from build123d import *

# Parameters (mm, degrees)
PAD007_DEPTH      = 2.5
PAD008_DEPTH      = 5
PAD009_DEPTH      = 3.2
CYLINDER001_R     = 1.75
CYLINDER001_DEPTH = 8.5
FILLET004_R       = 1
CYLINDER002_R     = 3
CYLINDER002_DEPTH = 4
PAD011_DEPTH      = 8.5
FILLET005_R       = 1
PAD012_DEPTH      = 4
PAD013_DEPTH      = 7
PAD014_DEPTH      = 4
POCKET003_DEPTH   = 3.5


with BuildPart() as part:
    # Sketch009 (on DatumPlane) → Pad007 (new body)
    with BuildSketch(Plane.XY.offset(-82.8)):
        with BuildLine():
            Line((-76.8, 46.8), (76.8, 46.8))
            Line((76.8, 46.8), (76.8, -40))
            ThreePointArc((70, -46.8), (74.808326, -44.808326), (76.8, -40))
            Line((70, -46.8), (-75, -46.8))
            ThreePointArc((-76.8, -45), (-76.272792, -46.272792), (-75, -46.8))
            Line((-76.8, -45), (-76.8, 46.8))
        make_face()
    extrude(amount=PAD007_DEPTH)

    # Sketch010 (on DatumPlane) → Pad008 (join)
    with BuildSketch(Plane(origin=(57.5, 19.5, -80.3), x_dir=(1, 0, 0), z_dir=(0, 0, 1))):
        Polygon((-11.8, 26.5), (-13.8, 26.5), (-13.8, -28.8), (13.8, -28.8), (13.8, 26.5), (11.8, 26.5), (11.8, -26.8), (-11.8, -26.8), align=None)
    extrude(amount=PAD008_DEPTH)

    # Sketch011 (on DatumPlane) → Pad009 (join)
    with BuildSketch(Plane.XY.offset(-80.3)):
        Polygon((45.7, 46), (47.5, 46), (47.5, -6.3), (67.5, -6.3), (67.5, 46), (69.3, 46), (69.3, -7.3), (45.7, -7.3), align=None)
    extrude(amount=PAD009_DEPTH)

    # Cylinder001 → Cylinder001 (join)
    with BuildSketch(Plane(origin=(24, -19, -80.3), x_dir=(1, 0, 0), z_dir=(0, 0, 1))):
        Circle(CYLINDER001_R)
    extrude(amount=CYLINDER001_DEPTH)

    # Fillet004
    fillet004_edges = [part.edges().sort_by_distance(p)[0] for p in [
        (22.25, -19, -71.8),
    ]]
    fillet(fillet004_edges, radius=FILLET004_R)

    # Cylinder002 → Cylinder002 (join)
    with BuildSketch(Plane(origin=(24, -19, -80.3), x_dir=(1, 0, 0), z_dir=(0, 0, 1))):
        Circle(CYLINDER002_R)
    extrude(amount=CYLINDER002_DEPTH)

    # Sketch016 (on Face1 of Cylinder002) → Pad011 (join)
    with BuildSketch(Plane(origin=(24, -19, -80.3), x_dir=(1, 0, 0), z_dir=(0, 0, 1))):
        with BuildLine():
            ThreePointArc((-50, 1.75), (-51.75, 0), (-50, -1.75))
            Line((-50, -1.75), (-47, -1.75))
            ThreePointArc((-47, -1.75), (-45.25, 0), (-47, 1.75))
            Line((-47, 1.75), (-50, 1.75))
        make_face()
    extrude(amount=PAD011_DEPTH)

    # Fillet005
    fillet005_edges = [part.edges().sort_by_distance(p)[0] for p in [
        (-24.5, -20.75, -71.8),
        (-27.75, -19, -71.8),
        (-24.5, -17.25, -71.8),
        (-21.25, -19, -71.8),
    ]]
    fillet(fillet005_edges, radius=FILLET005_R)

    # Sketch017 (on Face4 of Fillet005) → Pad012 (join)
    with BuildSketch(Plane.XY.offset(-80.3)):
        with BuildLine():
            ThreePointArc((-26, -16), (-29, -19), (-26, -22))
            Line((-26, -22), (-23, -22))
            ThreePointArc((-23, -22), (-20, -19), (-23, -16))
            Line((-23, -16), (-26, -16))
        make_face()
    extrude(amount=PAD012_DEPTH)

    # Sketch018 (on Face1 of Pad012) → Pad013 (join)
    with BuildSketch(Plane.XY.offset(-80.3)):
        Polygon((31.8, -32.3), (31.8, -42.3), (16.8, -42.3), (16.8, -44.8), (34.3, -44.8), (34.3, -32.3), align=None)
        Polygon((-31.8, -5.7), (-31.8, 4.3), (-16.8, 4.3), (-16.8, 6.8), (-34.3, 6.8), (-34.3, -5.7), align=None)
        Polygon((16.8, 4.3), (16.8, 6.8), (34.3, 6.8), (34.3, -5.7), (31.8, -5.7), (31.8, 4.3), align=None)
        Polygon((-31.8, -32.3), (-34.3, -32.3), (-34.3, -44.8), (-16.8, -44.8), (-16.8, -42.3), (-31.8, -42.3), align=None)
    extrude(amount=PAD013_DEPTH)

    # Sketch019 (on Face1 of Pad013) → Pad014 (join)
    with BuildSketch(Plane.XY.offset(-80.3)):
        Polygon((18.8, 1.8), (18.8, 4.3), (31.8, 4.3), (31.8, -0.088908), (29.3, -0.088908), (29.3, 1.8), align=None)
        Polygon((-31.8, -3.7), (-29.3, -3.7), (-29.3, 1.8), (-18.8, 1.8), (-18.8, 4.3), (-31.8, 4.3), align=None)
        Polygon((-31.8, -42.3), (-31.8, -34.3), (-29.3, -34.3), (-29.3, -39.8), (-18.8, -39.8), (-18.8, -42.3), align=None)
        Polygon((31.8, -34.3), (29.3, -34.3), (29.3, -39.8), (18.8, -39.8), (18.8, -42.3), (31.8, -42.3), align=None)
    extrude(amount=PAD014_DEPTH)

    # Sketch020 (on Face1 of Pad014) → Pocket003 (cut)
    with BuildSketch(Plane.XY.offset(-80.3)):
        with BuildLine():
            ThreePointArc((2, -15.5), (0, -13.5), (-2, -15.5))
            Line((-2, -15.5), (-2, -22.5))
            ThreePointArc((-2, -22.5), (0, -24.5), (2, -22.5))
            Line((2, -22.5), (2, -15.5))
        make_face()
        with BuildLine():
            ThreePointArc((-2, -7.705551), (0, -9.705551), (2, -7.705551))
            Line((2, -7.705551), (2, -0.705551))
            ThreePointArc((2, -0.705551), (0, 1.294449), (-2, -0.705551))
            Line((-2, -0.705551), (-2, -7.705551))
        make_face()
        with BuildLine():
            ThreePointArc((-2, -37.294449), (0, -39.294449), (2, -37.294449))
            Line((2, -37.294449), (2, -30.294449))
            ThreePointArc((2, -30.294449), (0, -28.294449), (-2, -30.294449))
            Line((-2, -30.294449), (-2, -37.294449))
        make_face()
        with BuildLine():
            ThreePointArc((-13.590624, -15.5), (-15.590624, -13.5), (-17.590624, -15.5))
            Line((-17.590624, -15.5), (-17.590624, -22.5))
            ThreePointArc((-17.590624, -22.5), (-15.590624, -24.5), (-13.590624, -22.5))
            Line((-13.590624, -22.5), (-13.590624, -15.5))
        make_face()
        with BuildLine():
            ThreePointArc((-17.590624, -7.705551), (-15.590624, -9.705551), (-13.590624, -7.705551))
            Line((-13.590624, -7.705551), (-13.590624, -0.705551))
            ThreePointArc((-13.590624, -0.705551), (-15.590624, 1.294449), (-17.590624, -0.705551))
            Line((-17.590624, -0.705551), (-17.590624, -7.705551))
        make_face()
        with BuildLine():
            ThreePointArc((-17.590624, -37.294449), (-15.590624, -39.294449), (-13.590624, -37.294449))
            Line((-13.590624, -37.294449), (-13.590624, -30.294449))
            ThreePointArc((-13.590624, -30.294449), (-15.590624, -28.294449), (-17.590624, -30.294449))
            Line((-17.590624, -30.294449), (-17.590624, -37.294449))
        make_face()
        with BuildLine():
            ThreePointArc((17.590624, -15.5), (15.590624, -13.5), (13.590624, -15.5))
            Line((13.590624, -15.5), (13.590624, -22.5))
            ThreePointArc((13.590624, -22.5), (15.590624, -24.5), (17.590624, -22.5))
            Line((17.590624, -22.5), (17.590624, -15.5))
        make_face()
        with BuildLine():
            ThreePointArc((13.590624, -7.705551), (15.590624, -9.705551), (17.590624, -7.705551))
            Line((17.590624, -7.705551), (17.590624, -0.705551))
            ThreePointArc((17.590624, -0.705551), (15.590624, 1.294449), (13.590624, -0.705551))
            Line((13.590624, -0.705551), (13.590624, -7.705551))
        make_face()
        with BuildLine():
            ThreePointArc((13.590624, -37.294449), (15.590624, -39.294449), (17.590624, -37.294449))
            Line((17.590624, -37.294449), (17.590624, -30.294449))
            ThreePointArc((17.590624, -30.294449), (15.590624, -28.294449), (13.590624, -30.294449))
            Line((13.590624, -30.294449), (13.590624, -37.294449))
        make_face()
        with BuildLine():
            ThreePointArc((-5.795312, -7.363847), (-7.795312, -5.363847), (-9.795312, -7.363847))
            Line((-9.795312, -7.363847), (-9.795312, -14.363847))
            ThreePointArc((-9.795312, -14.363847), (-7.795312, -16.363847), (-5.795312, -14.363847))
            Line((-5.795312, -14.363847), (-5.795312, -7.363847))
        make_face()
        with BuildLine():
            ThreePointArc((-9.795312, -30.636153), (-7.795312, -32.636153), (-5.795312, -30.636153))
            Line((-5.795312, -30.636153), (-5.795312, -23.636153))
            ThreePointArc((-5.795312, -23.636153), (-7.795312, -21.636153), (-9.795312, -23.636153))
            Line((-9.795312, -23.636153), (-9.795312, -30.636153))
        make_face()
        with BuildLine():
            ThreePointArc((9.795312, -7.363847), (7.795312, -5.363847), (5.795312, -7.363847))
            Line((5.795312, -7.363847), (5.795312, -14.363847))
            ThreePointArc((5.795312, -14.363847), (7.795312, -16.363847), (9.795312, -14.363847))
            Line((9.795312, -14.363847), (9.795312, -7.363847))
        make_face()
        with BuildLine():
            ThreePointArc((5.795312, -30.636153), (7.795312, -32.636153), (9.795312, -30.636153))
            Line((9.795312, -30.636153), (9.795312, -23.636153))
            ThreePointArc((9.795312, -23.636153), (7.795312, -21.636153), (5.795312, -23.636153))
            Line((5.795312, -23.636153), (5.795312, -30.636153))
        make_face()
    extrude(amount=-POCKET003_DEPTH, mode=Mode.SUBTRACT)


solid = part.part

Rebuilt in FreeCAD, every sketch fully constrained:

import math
import FreeCAD as App
import Part
import Sketcher
from FreeCAD import Vector
Q = App.Units.Quantity


def edges_at(feature, points):
    """Names of the edges that pass closest to the given points."""
    edges = feature.Shape.Edges
    near = lambda p: min(range(len(edges)), key=lambda i: edges[i].distToShape(Part.Vertex(*p))[0])
    return sorted({f"Edge{near(p) + 1}" for p in points})

doc = App.newDocument("Part")
body = doc.addObject("PartDesign::Body", "Body")

sketch1 = body.newObject("Sketcher::SketchObject", "Sketch")
sketch1.AttachmentSupport = (doc.getObject("XY_Plane"), [""])
sketch1.MapMode = "FlatFace"
sketch1.AttachmentOffset = App.Placement(Vector(0, 0, -82.8), App.Rotation())
sketch1.addGeometry(Part.LineSegment(Vector(76.8, 46.8, 0), Vector(-76.8, 46.8, 0)), False)
sketch1.addGeometry(Part.LineSegment(Vector(-76.8, 46.8, 0), Vector(-76.8, -45, 0)), False)
sketch1.addGeometry(Part.ArcOfCircle(Part.Circle(Vector(-75, -45, 0), Vector(0, 0, 1), 1.8), math.radians(-180), math.radians(-90)), False)
sketch1.addGeometry(Part.LineSegment(Vector(-75, -46.8, 0), Vector(70, -46.8, 0)), False)
sketch1.addGeometry(Part.ArcOfCircle(Part.Circle(Vector(70, -40, 0), Vector(0, 0, 1), 6.8), math.radians(-90), math.radians(0)), False)
sketch1.addGeometry(Part.LineSegment(Vector(76.8, -40, 0), Vector(76.8, 46.8, 0)), False)
sketch1.addConstraint(Sketcher.Constraint("Coincident", 0, 2, 1, 1))
sketch1.addConstraint(Sketcher.Constraint("Tangent", 1, 2, 2, 1))
sketch1.addConstraint(Sketcher.Constraint("Tangent", 2, 2, 3, 1))
sketch1.addConstraint(Sketcher.Constraint("Tangent", 3, 2, 4, 1))
sketch1.addConstraint(Sketcher.Constraint("Tangent", 4, 2, 5, 1))
sketch1.addConstraint(Sketcher.Constraint("Coincident", 5, 2, 0, 1))
sketch1.addConstraint(Sketcher.Constraint("Horizontal", 0))
sketch1.addConstraint(Sketcher.Constraint("Vertical", 1))
sketch1.addConstraint(Sketcher.Constraint("Horizontal", 3))
sketch1.addConstraint(Sketcher.Constraint("Vertical", 5))
sketch1.addConstraint(Sketcher.Constraint("Radius", 2, Q("1.800001 mm")))
sketch1.addConstraint(Sketcher.Constraint("Radius", 4, Q("6.8 mm")))
sketch1.addConstraint(Sketcher.Constraint("DistanceX", 3, 1, 3, 2, Q("145 mm")))
sketch1.addConstraint(Sketcher.Constraint("DistanceY", 1, 2, 1, 1, Q("91.8 mm")))
sketch1.addConstraint(Sketcher.Constraint("DistanceX", 2, 3, -1, 1, Q("74.999999 mm")))
sketch1.addConstraint(Sketcher.Constraint("DistanceY", 2, 3, -1, 1, Q("44.999999 mm")))
pad1 = body.newObject("PartDesign::Pad", "Pad")
pad1.Profile = sketch1
pad1.Length = 2.5

sketch2 = body.newObject("Sketcher::SketchObject", "Sketch001")
sketch2.AttachmentSupport = (doc.getObject("XY_Plane"), [""])
sketch2.MapMode = "FlatFace"
sketch2.AttachmentOffset = App.Placement(Vector(0, 0, -80.3), App.Rotation())
sketch2.addGeometry(Part.LineSegment(Vector(45.7, 46, 0), Vector(43.7, 46, 0)), False)
sketch2.addGeometry(Part.LineSegment(Vector(43.7, 46, 0), Vector(43.7, -9.3, 0)), False)
sketch2.addGeometry(Part.LineSegment(Vector(43.7, -9.3, 0), Vector(71.3, -9.3, 0)), False)
sketch2.addGeometry(Part.LineSegment(Vector(71.3, -9.3, 0), Vector(71.3, 46, 0)), False)
sketch2.addGeometry(Part.LineSegment(Vector(71.3, 46, 0), Vector(69.3, 46, 0)), False)
sketch2.addGeometry(Part.LineSegment(Vector(69.3, 46, 0), Vector(69.3, -7.3, 0)), False)
sketch2.addGeometry(Part.LineSegment(Vector(69.3, -7.3, 0), Vector(45.7, -7.3, 0)), False)
sketch2.addGeometry(Part.LineSegment(Vector(45.7, -7.3, 0), Vector(45.7, 46, 0)), False)
sketch2.addConstraint(Sketcher.Constraint("Coincident", 0, 2, 1, 1))
sketch2.addConstraint(Sketcher.Constraint("Coincident", 1, 2, 2, 1))
sketch2.addConstraint(Sketcher.Constraint("Coincident", 2, 2, 3, 1))
sketch2.addConstraint(Sketcher.Constraint("Coincident", 3, 2, 4, 1))
sketch2.addConstraint(Sketcher.Constraint("Coincident", 4, 2, 5, 1))
sketch2.addConstraint(Sketcher.Constraint("Coincident", 5, 2, 6, 1))
sketch2.addConstraint(Sketcher.Constraint("Coincident", 6, 2, 7, 1))
sketch2.addConstraint(Sketcher.Constraint("Coincident", 7, 2, 0, 1))
sketch2.addConstraint(Sketcher.Constraint("Horizontal", 0))
sketch2.addConstraint(Sketcher.Constraint("Vertical", 1))
sketch2.addConstraint(Sketcher.Constraint("Horizontal", 2))
sketch2.addConstraint(Sketcher.Constraint("Vertical", 3))
sketch2.addConstraint(Sketcher.Constraint("Horizontal", 4))
sketch2.addConstraint(Sketcher.Constraint("Vertical", 5))
sketch2.addConstraint(Sketcher.Constraint("Horizontal", 6))
sketch2.addConstraint(Sketcher.Constraint("Vertical", 7))
sketch2.addConstraint(Sketcher.Constraint("Horizontal", 0, 2, 3, 2))
sketch2.addConstraint(Sketcher.Constraint("Equal", 0, 4))
sketch2.addConstraint(Sketcher.Constraint("DistanceX", 0, 2, 0, 1, Q("2 mm")))
sketch2.addConstraint(Sketcher.Constraint("DistanceX", 2, 1, 2, 2, Q("27.6 mm")))
sketch2.addConstraint(Sketcher.Constraint("DistanceY", 1, 2, 1, 1, Q("55.3 mm")))
sketch2.addConstraint(Sketcher.Constraint("DistanceY", 5, 2, 5, 1, Q("53.3 mm")))
sketch2.addConstraint(Sketcher.Constraint("DistanceY", -1, 1, 0, 2, Q("46 mm")))
sketch2.addConstraint(Sketcher.Constraint("DistanceX", -1, 1, 0, 2, Q("43.7 mm")))
pad2 = body.newObject("PartDesign::Pad", "Pad001")
pad2.Profile = sketch2
pad2.Length = 5

sketch3 = body.newObject("Sketcher::SketchObject", "Sketch002")
sketch3.AttachmentSupport = (doc.getObject("XY_Plane"), [""])
sketch3.MapMode = "FlatFace"
sketch3.AttachmentOffset = App.Placement(Vector(0, 0, -80.3), App.Rotation())
sketch3.addGeometry(Part.LineSegment(Vector(47.5, 46, 0), Vector(45.7, 46, 0)), False)
sketch3.addGeometry(Part.LineSegment(Vector(45.7, 46, 0), Vector(45.7, -7.3, 0)), False)
sketch3.addGeometry(Part.LineSegment(Vector(45.7, -7.3, 0), Vector(69.3, -7.3, 0)), False)
sketch3.addGeometry(Part.LineSegment(Vector(69.3, -7.3, 0), Vector(69.3, 46, 0)), False)
sketch3.addGeometry(Part.LineSegment(Vector(69.3, 46, 0), Vector(67.5, 46, 0)), False)
sketch3.addGeometry(Part.LineSegment(Vector(67.5, 46, 0), Vector(67.5, -6.3, 0)), False)
sketch3.addGeometry(Part.LineSegment(Vector(67.5, -6.3, 0), Vector(47.5, -6.3, 0)), False)
sketch3.addGeometry(Part.LineSegment(Vector(47.5, -6.3, 0), Vector(47.5, 46, 0)), False)
sketch3.addConstraint(Sketcher.Constraint("Coincident", 0, 2, 1, 1))
sketch3.addConstraint(Sketcher.Constraint("Coincident", 1, 2, 2, 1))
sketch3.addConstraint(Sketcher.Constraint("Coincident", 2, 2, 3, 1))
sketch3.addConstraint(Sketcher.Constraint("Coincident", 3, 2, 4, 1))
sketch3.addConstraint(Sketcher.Constraint("Coincident", 4, 2, 5, 1))
sketch3.addConstraint(Sketcher.Constraint("Coincident", 5, 2, 6, 1))
sketch3.addConstraint(Sketcher.Constraint("Coincident", 6, 2, 7, 1))
sketch3.addConstraint(Sketcher.Constraint("Coincident", 7, 2, 0, 1))
sketch3.addConstraint(Sketcher.Constraint("Horizontal", 0))
sketch3.addConstraint(Sketcher.Constraint("Vertical", 1))
sketch3.addConstraint(Sketcher.Constraint("Horizontal", 2))
sketch3.addConstraint(Sketcher.Constraint("Vertical", 3))
sketch3.addConstraint(Sketcher.Constraint("Horizontal", 4))
sketch3.addConstraint(Sketcher.Constraint("Vertical", 5))
sketch3.addConstraint(Sketcher.Constraint("Horizontal", 6))
sketch3.addConstraint(Sketcher.Constraint("Vertical", 7))
sketch3.addConstraint(Sketcher.Constraint("Horizontal", 0, 2, 3, 2))
sketch3.addConstraint(Sketcher.Constraint("Equal", 0, 4))
sketch3.addConstraint(Sketcher.Constraint("DistanceX", 6, 2, 6, 1, Q("20 mm")))
sketch3.addConstraint(Sketcher.Constraint("DistanceX", 0, 2, 0, 1, Q("1.8 mm")))
sketch3.addConstraint(Sketcher.Constraint("DistanceY", 1, 2, 1, 1, Q("53.3 mm")))
sketch3.addConstraint(Sketcher.Constraint("DistanceY", 5, 2, 5, 1, Q("52.3 mm")))
sketch3.addConstraint(Sketcher.Constraint("DistanceY", -1, 1, 0, 2, Q("46 mm")))
sketch3.addConstraint(Sketcher.Constraint("DistanceX", -1, 1, 0, 2, Q("45.7 mm")))
pad3 = body.newObject("PartDesign::Pad", "Pad002")
pad3.Profile = sketch3
pad3.Length = 3.2

sketch4 = body.newObject("Sketcher::SketchObject", "Sketch003")
sketch4.AttachmentSupport = (doc.getObject("XY_Plane"), [""])
sketch4.MapMode = "FlatFace"
sketch4.AttachmentOffset = App.Placement(Vector(0, 0, -80.3), App.Rotation())
sketch4.addGeometry(Part.Circle(Vector(24, -19, 0), Vector(0, 0, 1), 1.8), False)
sketch4.addConstraint(Sketcher.Constraint("Diameter", 0, Q("3.5 mm")))
sketch4.addConstraint(Sketcher.Constraint("DistanceX", -1, 1, 0, 3, Q("24 mm")))
sketch4.addConstraint(Sketcher.Constraint("DistanceY", 0, 3, -1, 1, Q("19 mm")))
pad4 = body.newObject("PartDesign::Pad", "Pad003")
pad4.Profile = sketch4
pad4.Length = 8.5
doc.recompute()

fillet = body.newObject("PartDesign::Fillet", "Fillet")
fillet.Base = (pad4, edges_at(pad4, [(22.25, -19, -71.8)]))
fillet.Radius = 1

sketch5 = body.newObject("Sketcher::SketchObject", "Sketch004")
sketch5.AttachmentSupport = (doc.getObject("XY_Plane"), [""])
sketch5.MapMode = "FlatFace"
sketch5.AttachmentOffset = App.Placement(Vector(0, 0, -80.3), App.Rotation())
sketch5.addGeometry(Part.Circle(Vector(24, -19, 0), Vector(0, 0, 1), 3), False)
sketch5.addConstraint(Sketcher.Constraint("Diameter", 0, Q("6 mm")))
sketch5.addConstraint(Sketcher.Constraint("DistanceX", -1, 1, 0, 3, Q("24 mm")))
sketch5.addConstraint(Sketcher.Constraint("DistanceY", 0, 3, -1, 1, Q("19 mm")))
pad5 = body.newObject("PartDesign::Pad", "Pad004")
pad5.Profile = sketch5
pad5.Length = 4

sketch6 = body.newObject("Sketcher::SketchObject", "Sketch005")
sketch6.AttachmentSupport = (doc.getObject("XY_Plane"), [""])
sketch6.MapMode = "FlatFace"
sketch6.AttachmentOffset = App.Placement(Vector(0, 0, -80.3), App.Rotation())
sketch6.addGeometry(Part.ArcOfCircle(Part.Circle(Vector(-26, -19, 0), Vector(0, 0, 1), 1.8), math.radians(90), math.radians(270)), False)
sketch6.addGeometry(Part.LineSegment(Vector(-26, -20.8, 0), Vector(-23, -20.8, 0)), False)
sketch6.addGeometry(Part.ArcOfCircle(Part.Circle(Vector(-23, -19, 0), Vector(0, 0, 1), 1.8), math.radians(-90), math.radians(90)), False)
sketch6.addGeometry(Part.LineSegment(Vector(-23, -17.2, 0), Vector(-26, -17.2, 0)), False)
sketch6.addConstraint(Sketcher.Constraint("Tangent", 0, 2, 1, 1))
sketch6.addConstraint(Sketcher.Constraint("Tangent", 1, 2, 2, 1))
sketch6.addConstraint(Sketcher.Constraint("Tangent", 2, 2, 3, 1))
sketch6.addConstraint(Sketcher.Constraint("Tangent", 3, 2, 0, 1))
sketch6.addConstraint(Sketcher.Constraint("Horizontal", 1))
sketch6.addConstraint(Sketcher.Constraint("Horizontal", 3))
sketch6.addConstraint(Sketcher.Constraint("DistanceX", 1, 1, 1, 2, Q("3 mm")))
sketch6.addConstraint(Sketcher.Constraint("Radius", 0, Q("1.75 mm")))
sketch6.addConstraint(Sketcher.Constraint("DistanceX", 0, 3, -1, 1, Q("26 mm")))
sketch6.addConstraint(Sketcher.Constraint("DistanceY", 0, 3, -1, 1, Q("19 mm")))
pad6 = body.newObject("PartDesign::Pad", "Pad005")
pad6.Profile = sketch6
pad6.Length = 8.5
doc.recompute()

fillet2 = body.newObject("PartDesign::Fillet", "Fillet001")
fillet2.Base = (pad6, edges_at(pad6, [
    (-24.5, -20.75, -71.8),
    (-27.75, -19, -71.8),
    (-24.5, -17.25, -71.8),
    (-21.25, -19, -71.8),
]))
fillet2.Radius = 1

sketch7 = body.newObject("Sketcher::SketchObject", "Sketch006")
sketch7.AttachmentSupport = (doc.getObject("XY_Plane"), [""])
sketch7.MapMode = "FlatFace"
sketch7.AttachmentOffset = App.Placement(Vector(0, 0, -80.3), App.Rotation())
sketch7.addGeometry(Part.ArcOfCircle(Part.Circle(Vector(-26, -19, 0), Vector(0, 0, 1), 3), math.radians(90), math.radians(270)), False)
sketch7.addGeometry(Part.LineSegment(Vector(-26, -22, 0), Vector(-23, -22, 0)), False)
sketch7.addGeometry(Part.ArcOfCircle(Part.Circle(Vector(-23, -19, 0), Vector(0, 0, 1), 3), math.radians(-90), math.radians(90)), False)
sketch7.addGeometry(Part.LineSegment(Vector(-23, -16, 0), Vector(-26, -16, 0)), False)
sketch7.addConstraint(Sketcher.Constraint("Tangent", 0, 2, 1, 1))
sketch7.addConstraint(Sketcher.Constraint("Tangent", 1, 2, 2, 1))
sketch7.addConstraint(Sketcher.Constraint("Tangent", 2, 2, 3, 1))
sketch7.addConstraint(Sketcher.Constraint("Tangent", 3, 2, 0, 1))
sketch7.addConstraint(Sketcher.Constraint("Horizontal", 1))
sketch7.addConstraint(Sketcher.Constraint("Horizontal", 3))
sketch7.addConstraint(Sketcher.Constraint("Radius", 0, Q("3 mm")))
sketch7.addConstraint(Sketcher.Constraint("DistanceX", 1, 1, 1, 2, Q("3 mm")))
sketch7.addConstraint(Sketcher.Constraint("DistanceX", 0, 3, -1, 1, Q("26 mm")))
sketch7.addConstraint(Sketcher.Constraint("DistanceY", 0, 3, -1, 1, Q("19 mm")))
pad7 = body.newObject("PartDesign::Pad", "Pad006")
pad7.Profile = sketch7
pad7.Length = 4

sketch8 = body.newObject("Sketcher::SketchObject", "Sketch007")
sketch8.AttachmentSupport = (doc.getObject("XY_Plane"), [""])
sketch8.MapMode = "FlatFace"
sketch8.AttachmentOffset = App.Placement(Vector(0, 0, -80.3), App.Rotation())
sketch8.addGeometry(Part.LineSegment(Vector(31.8, -32.3, 0), Vector(31.8, -42.3, 0)), False)
sketch8.addGeometry(Part.LineSegment(Vector(31.8, -42.3, 0), Vector(16.8, -42.3, 0)), False)
sketch8.addGeometry(Part.LineSegment(Vector(16.8, -42.3, 0), Vector(16.8, -44.8, 0)), False)
sketch8.addGeometry(Part.LineSegment(Vector(16.8, -44.8, 0), Vector(34.3, -44.8, 0)), False)
sketch8.addGeometry(Part.LineSegment(Vector(34.3, -44.8, 0), Vector(34.3, -32.3, 0)), False)
sketch8.addGeometry(Part.LineSegment(Vector(34.3, -32.3, 0), Vector(31.8, -32.3, 0)), False)
sketch8.addGeometry(Part.LineSegment(Vector(-31.8, -5.7, 0), Vector(-31.8, 4.3, 0)), False)
sketch8.addGeometry(Part.LineSegment(Vector(-31.8, 4.3, 0), Vector(-16.8, 4.3, 0)), False)
sketch8.addGeometry(Part.LineSegment(Vector(-16.8, 4.3, 0), Vector(-16.8, 6.8, 0)), False)
sketch8.addGeometry(Part.LineSegment(Vector(-16.8, 6.8, 0), Vector(-34.3, 6.8, 0)), False)
sketch8.addGeometry(Part.LineSegment(Vector(-34.3, 6.8, 0), Vector(-34.3, -5.7, 0)), False)
sketch8.addGeometry(Part.LineSegment(Vector(-34.3, -5.7, 0), Vector(-31.8, -5.7, 0)), False)
sketch8.addGeometry(Part.LineSegment(Vector(16.8, 6.8, 0), Vector(16.8, 4.3, 0)), False)
sketch8.addGeometry(Part.LineSegment(Vector(16.8, 4.3, 0), Vector(31.8, 4.3, 0)), False)
sketch8.addGeometry(Part.LineSegment(Vector(31.8, 4.3, 0), Vector(31.8, -5.7, 0)), False)
sketch8.addGeometry(Part.LineSegment(Vector(31.8, -5.7, 0), Vector(34.3, -5.7, 0)), False)
sketch8.addGeometry(Part.LineSegment(Vector(34.3, -5.7, 0), Vector(34.3, 6.8, 0)), False)
sketch8.addGeometry(Part.LineSegment(Vector(34.3, 6.8, 0), Vector(16.8, 6.8, 0)), False)
sketch8.addGeometry(Part.LineSegment(Vector(-31.8, -32.3, 0), Vector(-34.3, -32.3, 0)), False)
sketch8.addGeometry(Part.LineSegment(Vector(-34.3, -32.3, 0), Vector(-34.3, -44.8, 0)), False)
sketch8.addGeometry(Part.LineSegment(Vector(-34.3, -44.8, 0), Vector(-16.8, -44.8, 0)), False)
sketch8.addGeometry(Part.LineSegment(Vector(-16.8, -44.8, 0), Vector(-16.8, -42.3, 0)), False)
sketch8.addGeometry(Part.LineSegment(Vector(-16.8, -42.3, 0), Vector(-31.8, -42.3, 0)), False)
sketch8.addGeometry(Part.LineSegment(Vector(-31.8, -42.3, 0), Vector(-31.8, -32.3, 0)), False)
sketch8.addConstraint(Sketcher.Constraint("Coincident", 0, 2, 1, 1))
sketch8.addConstraint(Sketcher.Constraint("Coincident", 1, 2, 2, 1))
sketch8.addConstraint(Sketcher.Constraint("Coincident", 2, 2, 3, 1))
sketch8.addConstraint(Sketcher.Constraint("Coincident", 3, 2, 4, 1))
sketch8.addConstraint(Sketcher.Constraint("Coincident", 4, 2, 5, 1))
sketch8.addConstraint(Sketcher.Constraint("Coincident", 5, 2, 0, 1))
sketch8.addConstraint(Sketcher.Constraint("Coincident", 6, 2, 7, 1))
sketch8.addConstraint(Sketcher.Constraint("Coincident", 7, 2, 8, 1))
sketch8.addConstraint(Sketcher.Constraint("Coincident", 8, 2, 9, 1))
sketch8.addConstraint(Sketcher.Constraint("Coincident", 9, 2, 10, 1))
sketch8.addConstraint(Sketcher.Constraint("Coincident", 10, 2, 11, 1))
sketch8.addConstraint(Sketcher.Constraint("Coincident", 11, 2, 6, 1))
sketch8.addConstraint(Sketcher.Constraint("Coincident", 12, 2, 13, 1))
sketch8.addConstraint(Sketcher.Constraint("Coincident", 13, 2, 14, 1))
sketch8.addConstraint(Sketcher.Constraint("Coincident", 14, 2, 15, 1))
sketch8.addConstraint(Sketcher.Constraint("Coincident", 15, 2, 16, 1))
sketch8.addConstraint(Sketcher.Constraint("Coincident", 16, 2, 17, 1))
sketch8.addConstraint(Sketcher.Constraint("Coincident", 17, 2, 12, 1))
sketch8.addConstraint(Sketcher.Constraint("Coincident", 18, 2, 19, 1))
sketch8.addConstraint(Sketcher.Constraint("Coincident", 19, 2, 20, 1))
sketch8.addConstraint(Sketcher.Constraint("Coincident", 20, 2, 21, 1))
sketch8.addConstraint(Sketcher.Constraint("Coincident", 21, 2, 22, 1))
sketch8.addConstraint(Sketcher.Constraint("Coincident", 22, 2, 23, 1))
sketch8.addConstraint(Sketcher.Constraint("Coincident", 23, 2, 18, 1))
sketch8.addConstraint(Sketcher.Constraint("Vertical", 0))
sketch8.addConstraint(Sketcher.Constraint("Horizontal", 1))
sketch8.addConstraint(Sketcher.Constraint("Vertical", 2))
sketch8.addConstraint(Sketcher.Constraint("Horizontal", 3))
sketch8.addConstraint(Sketcher.Constraint("Vertical", 4))
sketch8.addConstraint(Sketcher.Constraint("Horizontal", 5))
sketch8.addConstraint(Sketcher.Constraint("Vertical", 6))
sketch8.addConstraint(Sketcher.Constraint("Horizontal", 7))
sketch8.addConstraint(Sketcher.Constraint("Vertical", 8))
sketch8.addConstraint(Sketcher.Constraint("Horizontal", 9))
sketch8.addConstraint(Sketcher.Constraint("Vertical", 10))
sketch8.addConstraint(Sketcher.Constraint("Horizontal", 11))
sketch8.addConstraint(Sketcher.Constraint("Vertical", 12))
sketch8.addConstraint(Sketcher.Constraint("Horizontal", 13))
sketch8.addConstraint(Sketcher.Constraint("Vertical", 14))
sketch8.addConstraint(Sketcher.Constraint("Horizontal", 15))
sketch8.addConstraint(Sketcher.Constraint("Vertical", 16))
sketch8.addConstraint(Sketcher.Constraint("Horizontal", 17))
sketch8.addConstraint(Sketcher.Constraint("Horizontal", 18))
sketch8.addConstraint(Sketcher.Constraint("Vertical", 19))
sketch8.addConstraint(Sketcher.Constraint("Horizontal", 20))
sketch8.addConstraint(Sketcher.Constraint("Vertical", 21))
sketch8.addConstraint(Sketcher.Constraint("Horizontal", 22))
sketch8.addConstraint(Sketcher.Constraint("Vertical", 23))
sketch8.addConstraint(Sketcher.Constraint("Symmetric", 7, 2, 12, 2, -2))
sketch8.addConstraint(Sketcher.Constraint("Symmetric", 11, 2, 14, 2, -2))
sketch8.addConstraint(Sketcher.Constraint("Symmetric", 9, 2, 16, 2, -2))
sketch8.addConstraint(Sketcher.Constraint("Symmetric", 4, 2, 18, 2, -2))
sketch8.addConstraint(Sketcher.Constraint("Symmetric", 2, 2, 20, 2, -2))
sketch8.addConstraint(Sketcher.Constraint("Symmetric", 0, 2, 22, 2, -2))
sketch8.addConstraint(Sketcher.Constraint("Vertical", 2, 2, 12, 2))
sketch8.addConstraint(Sketcher.Constraint("Vertical", 5, 2, 13, 2))
sketch8.addConstraint(Sketcher.Constraint("Vertical", 4, 2, 15, 2))
sketch8.addConstraint(Sketcher.Constraint("Equal", 18, 2))
sketch8.addConstraint(Sketcher.Constraint("Equal", 0, 6))
sketch8.addConstraint(Sketcher.Constraint("Equal", 2, 8))
sketch8.addConstraint(Sketcher.Constraint("DistanceX", 1, 2, 1, 1, Q("15 mm")))
sketch8.addConstraint(Sketcher.Constraint("DistanceY", 0, 2, 0, 1, Q("10 mm")))
sketch8.addConstraint(Sketcher.Constraint("DistanceX", 3, 1, 3, 2, Q("17.5 mm")))
sketch8.addConstraint(Sketcher.Constraint("DistanceX", -1, 1, 0, 2, Q("31.8 mm")))
sketch8.addConstraint(Sketcher.Constraint("DistanceY", 0, 2, -1, 1, Q("42.3 mm")))
sketch8.addConstraint(Sketcher.Constraint("DistanceY", -1, 1, 6, 2, Q("4.3 mm")))
pad8 = body.newObject("PartDesign::Pad", "Pad007")
pad8.Profile = sketch8
pad8.Length = 7

sketch9 = body.newObject("Sketcher::SketchObject", "Sketch008")
sketch9.AttachmentSupport = (doc.getObject("XY_Plane"), [""])
sketch9.MapMode = "FlatFace"
sketch9.AttachmentOffset = App.Placement(Vector(0, 0, -80.3), App.Rotation())
sketch9.addGeometry(Part.LineSegment(Vector(18.8, 4.3, 0), Vector(18.8, 1.8, 0)), False)
sketch9.addGeometry(Part.LineSegment(Vector(18.8, 1.8, 0), Vector(29.3, 1.8, 0)), False)
sketch9.addGeometry(Part.LineSegment(Vector(29.3, 1.8, 0), Vector(29.3, -0.1, 0)), False)
sketch9.addGeometry(Part.LineSegment(Vector(29.3, -0.1, 0), Vector(31.8, -0.1, 0)), False)
sketch9.addGeometry(Part.LineSegment(Vector(31.8, -0.1, 0), Vector(31.8, 4.3, 0)), False)
sketch9.addGeometry(Part.LineSegment(Vector(31.8, 4.3, 0), Vector(18.8, 4.3, 0)), False)
sketch9.addGeometry(Part.LineSegment(Vector(-31.8, -3.7, 0), Vector(-29.3, -3.7, 0)), False)
sketch9.addGeometry(Part.LineSegment(Vector(-29.3, -3.7, 0), Vector(-29.3, 1.8, 0)), False)
sketch9.addGeometry(Part.LineSegment(Vector(-29.3, 1.8, 0), Vector(-18.8, 1.8, 0)), False)
sketch9.addGeometry(Part.LineSegment(Vector(-18.8, 1.8, 0), Vector(-18.8, 4.3, 0)), False)
sketch9.addGeometry(Part.LineSegment(Vector(-18.8, 4.3, 0), Vector(-31.8, 4.3, 0)), False)
sketch9.addGeometry(Part.LineSegment(Vector(-31.8, 4.3, 0), Vector(-31.8, -3.7, 0)), False)
sketch9.addGeometry(Part.LineSegment(Vector(-31.8, -34.3, 0), Vector(-31.8, -42.3, 0)), False)
sketch9.addGeometry(Part.LineSegment(Vector(-31.8, -42.3, 0), Vector(-18.8, -42.3, 0)), False)
sketch9.addGeometry(Part.LineSegment(Vector(-18.8, -42.3, 0), Vector(-18.8, -39.8, 0)), False)
sketch9.addGeometry(Part.LineSegment(Vector(-18.8, -39.8, 0), Vector(-29.3, -39.8, 0)), False)
sketch9.addGeometry(Part.LineSegment(Vector(-29.3, -39.8, 0), Vector(-29.3, -34.3, 0)), False)
sketch9.addGeometry(Part.LineSegment(Vector(-29.3, -34.3, 0), Vector(-31.8, -34.3, 0)), False)
sketch9.addGeometry(Part.LineSegment(Vector(31.8, -34.3, 0), Vector(29.3, -34.3, 0)), False)
sketch9.addGeometry(Part.LineSegment(Vector(29.3, -34.3, 0), Vector(29.3, -39.8, 0)), False)
sketch9.addGeometry(Part.LineSegment(Vector(29.3, -39.8, 0), Vector(18.8, -39.8, 0)), False)
sketch9.addGeometry(Part.LineSegment(Vector(18.8, -39.8, 0), Vector(18.8, -42.3, 0)), False)
sketch9.addGeometry(Part.LineSegment(Vector(18.8, -42.3, 0), Vector(31.8, -42.3, 0)), False)
sketch9.addGeometry(Part.LineSegment(Vector(31.8, -42.3, 0), Vector(31.8, -34.3, 0)), False)
sketch9.addConstraint(Sketcher.Constraint("Coincident", 0, 2, 1, 1))
sketch9.addConstraint(Sketcher.Constraint("Coincident", 1, 2, 2, 1))
sketch9.addConstraint(Sketcher.Constraint("Coincident", 2, 2, 3, 1))
sketch9.addConstraint(Sketcher.Constraint("Coincident", 3, 2, 4, 1))
sketch9.addConstraint(Sketcher.Constraint("Coincident", 4, 2, 5, 1))
sketch9.addConstraint(Sketcher.Constraint("Coincident", 5, 2, 0, 1))
sketch9.addConstraint(Sketcher.Constraint("Coincident", 6, 2, 7, 1))
sketch9.addConstraint(Sketcher.Constraint("Coincident", 7, 2, 8, 1))
sketch9.addConstraint(Sketcher.Constraint("Coincident", 8, 2, 9, 1))
sketch9.addConstraint(Sketcher.Constraint("Coincident", 9, 2, 10, 1))
sketch9.addConstraint(Sketcher.Constraint("Coincident", 10, 2, 11, 1))
sketch9.addConstraint(Sketcher.Constraint("Coincident", 11, 2, 6, 1))
sketch9.addConstraint(Sketcher.Constraint("Coincident", 12, 2, 13, 1))
sketch9.addConstraint(Sketcher.Constraint("Coincident", 13, 2, 14, 1))
sketch9.addConstraint(Sketcher.Constraint("Coincident", 14, 2, 15, 1))
sketch9.addConstraint(Sketcher.Constraint("Coincident", 15, 2, 16, 1))
sketch9.addConstraint(Sketcher.Constraint("Coincident", 16, 2, 17, 1))
sketch9.addConstraint(Sketcher.Constraint("Coincident", 17, 2, 12, 1))
sketch9.addConstraint(Sketcher.Constraint("Coincident", 18, 2, 19, 1))
sketch9.addConstraint(Sketcher.Constraint("Coincident", 19, 2, 20, 1))
sketch9.addConstraint(Sketcher.Constraint("Coincident", 20, 2, 21, 1))
sketch9.addConstraint(Sketcher.Constraint("Coincident", 21, 2, 22, 1))
sketch9.addConstraint(Sketcher.Constraint("Coincident", 22, 2, 23, 1))
sketch9.addConstraint(Sketcher.Constraint("Coincident", 23, 2, 18, 1))
sketch9.addConstraint(Sketcher.Constraint("Vertical", 0))
sketch9.addConstraint(Sketcher.Constraint("Horizontal", 1))
sketch9.addConstraint(Sketcher.Constraint("Vertical", 2))
sketch9.addConstraint(Sketcher.Constraint("Horizontal", 3))
sketch9.addConstraint(Sketcher.Constraint("Vertical", 4))
sketch9.addConstraint(Sketcher.Constraint("Horizontal", 5))
sketch9.addConstraint(Sketcher.Constraint("Horizontal", 6))
sketch9.addConstraint(Sketcher.Constraint("Vertical", 7))
sketch9.addConstraint(Sketcher.Constraint("Horizontal", 8))
sketch9.addConstraint(Sketcher.Constraint("Vertical", 9))
sketch9.addConstraint(Sketcher.Constraint("Horizontal", 10))
sketch9.addConstraint(Sketcher.Constraint("Vertical", 11))
sketch9.addConstraint(Sketcher.Constraint("Vertical", 12))
sketch9.addConstraint(Sketcher.Constraint("Horizontal", 13))
sketch9.addConstraint(Sketcher.Constraint("Vertical", 14))
sketch9.addConstraint(Sketcher.Constraint("Horizontal", 15))
sketch9.addConstraint(Sketcher.Constraint("Vertical", 16))
sketch9.addConstraint(Sketcher.Constraint("Horizontal", 17))
sketch9.addConstraint(Sketcher.Constraint("Horizontal", 18))
sketch9.addConstraint(Sketcher.Constraint("Vertical", 19))
sketch9.addConstraint(Sketcher.Constraint("Horizontal", 20))
sketch9.addConstraint(Sketcher.Constraint("Vertical", 21))
sketch9.addConstraint(Sketcher.Constraint("Horizontal", 22))
sketch9.addConstraint(Sketcher.Constraint("Vertical", 23))
sketch9.addConstraint(Sketcher.Constraint("Symmetric", 1, 2, 7, 2, -2))
sketch9.addConstraint(Sketcher.Constraint("Symmetric", 5, 2, 9, 2, -2))
sketch9.addConstraint(Sketcher.Constraint("Symmetric", 16, 2, 18, 2, -2))
sketch9.addConstraint(Sketcher.Constraint("Symmetric", 14, 2, 20, 2, -2))
sketch9.addConstraint(Sketcher.Constraint("Symmetric", 12, 2, 22, 2, -2))
sketch9.addConstraint(Sketcher.Constraint("Vertical", 11, 2, 12, 2))
sketch9.addConstraint(Sketcher.Constraint("Vertical", 9, 2, 13, 2))
sketch9.addConstraint(Sketcher.Constraint("Vertical", 7, 2, 15, 2))
sketch9.addConstraint(Sketcher.Constraint("Vertical", 4, 2, 22, 2))
sketch9.addConstraint(Sketcher.Constraint("Equal", 18, 0))
sketch9.addConstraint(Sketcher.Constraint("Equal", 11, 12))
sketch9.addConstraint(Sketcher.Constraint("Equal", 9, 14))
sketch9.addConstraint(Sketcher.Constraint("DistanceX", 5, 2, 5, 1, Q("13 mm")))
sketch9.addConstraint(Sketcher.Constraint("DistanceY", 11, 2, 11, 1, Q("8 mm")))
sketch9.addConstraint(Sketcher.Constraint("DistanceX", 1, 1, 1, 2, Q("10.5 mm")))
sketch9.addConstraint(Sketcher.Constraint("DistanceX", -1, 1, 0, 2, Q("18.8 mm")))
sketch9.addConstraint(Sketcher.Constraint("DistanceY", -1, 1, 0, 2, Q("1.8 mm")))
sketch9.addConstraint(Sketcher.Constraint("DistanceY", 12, 2, -1, 1, Q("42.3 mm")))
sketch9.addConstraint(Sketcher.Constraint("DistanceY", 2, 2, 2, 1, Q("1.888908 mm")))
pad9 = body.newObject("PartDesign::Pad", "Pad008")
pad9.Profile = sketch9
pad9.Length = 4

sketch10 = body.newObject("Sketcher::SketchObject", "Sketch009")
sketch10.AttachmentSupport = (doc.getObject("XY_Plane"), [""])
sketch10.MapMode = "FlatFace"
sketch10.AttachmentOffset = App.Placement(Vector(0, 0, -80.3), App.Rotation())
sketch10.addGeometry(Part.ArcOfCircle(Part.Circle(Vector(0, -15.5, 0), Vector(0, 0, 1), 2), math.radians(0), math.radians(180)), False)
sketch10.addGeometry(Part.LineSegment(Vector(-2, -15.5, 0), Vector(-2, -22.5, 0)), False)
sketch10.addGeometry(Part.ArcOfCircle(Part.Circle(Vector(0, -22.5, 0), Vector(0, 0, 1), 2), math.radians(180), math.radians(360)), False)
sketch10.addGeometry(Part.LineSegment(Vector(2, -22.5, 0), Vector(2, -15.5, 0)), False)
sketch10.addGeometry(Part.ArcOfCircle(Part.Circle(Vector(0, -7.7, 0), Vector(0, 0, 1), 2), math.radians(180), math.radians(360)), False)
sketch10.addGeometry(Part.LineSegment(Vector(2, -7.7, 0), Vector(2, -0.7, 0)), False)
sketch10.addGeometry(Part.ArcOfCircle(Part.Circle(Vector(0, -0.7, 0), Vector(0, 0, 1), 2), math.radians(0), math.radians(180)), False)
sketch10.addGeometry(Part.LineSegment(Vector(-2, -0.7, 0), Vector(-2, -7.7, 0)), False)
sketch10.addGeometry(Part.ArcOfCircle(Part.Circle(Vector(0, -37.3, 0), Vector(0, 0, 1), 2), math.radians(180), math.radians(360)), False)
sketch10.addGeometry(Part.LineSegment(Vector(2, -37.3, 0), Vector(2, -30.3, 0)), False)
sketch10.addGeometry(Part.ArcOfCircle(Part.Circle(Vector(0, -30.3, 0), Vector(0, 0, 1), 2), math.radians(0), math.radians(180)), False)
sketch10.addGeometry(Part.LineSegment(Vector(-2, -30.3, 0), Vector(-2, -37.3, 0)), False)
sketch10.addGeometry(Part.ArcOfCircle(Part.Circle(Vector(-15.6, -15.5, 0), Vector(0, 0, 1), 2), math.radians(0), math.radians(180)), False)
sketch10.addGeometry(Part.LineSegment(Vector(-17.6, -15.5, 0), Vector(-17.6, -22.5, 0)), False)
sketch10.addGeometry(Part.ArcOfCircle(Part.Circle(Vector(-15.6, -22.5, 0), Vector(0, 0, 1), 2), math.radians(180), math.radians(360)), False)
sketch10.addGeometry(Part.LineSegment(Vector(-13.6, -22.5, 0), Vector(-13.6, -15.5, 0)), False)
sketch10.addGeometry(Part.ArcOfCircle(Part.Circle(Vector(-15.6, -7.7, 0), Vector(0, 0, 1), 2), math.radians(180), math.radians(360)), False)
sketch10.addGeometry(Part.LineSegment(Vector(-13.6, -7.7, 0), Vector(-13.6, -0.7, 0)), False)
sketch10.addGeometry(Part.ArcOfCircle(Part.Circle(Vector(-15.6, -0.7, 0), Vector(0, 0, 1), 2), math.radians(0), math.radians(180)), False)
sketch10.addGeometry(Part.LineSegment(Vector(-17.6, -0.7, 0), Vector(-17.6, -7.7, 0)), False)
sketch10.addGeometry(Part.ArcOfCircle(Part.Circle(Vector(-15.6, -37.3, 0), Vector(0, 0, 1), 2), math.radians(180), math.radians(360)), False)
sketch10.addGeometry(Part.LineSegment(Vector(-13.6, -37.3, 0), Vector(-13.6, -30.3, 0)), False)
sketch10.addGeometry(Part.ArcOfCircle(Part.Circle(Vector(-15.6, -30.3, 0), Vector(0, 0, 1), 2), math.radians(0), math.radians(180)), False)
sketch10.addGeometry(Part.LineSegment(Vector(-17.6, -30.3, 0), Vector(-17.6, -37.3, 0)), False)
sketch10.addGeometry(Part.ArcOfCircle(Part.Circle(Vector(15.6, -15.5, 0), Vector(0, 0, 1), 2), math.radians(0), math.radians(180)), False)
sketch10.addGeometry(Part.LineSegment(Vector(13.6, -15.5, 0), Vector(13.6, -22.5, 0)), False)
sketch10.addGeometry(Part.ArcOfCircle(Part.Circle(Vector(15.6, -22.5, 0), Vector(0, 0, 1), 2), math.radians(180), math.radians(360)), False)
sketch10.addGeometry(Part.LineSegment(Vector(17.6, -22.5, 0), Vector(17.6, -15.5, 0)), False)
sketch10.addGeometry(Part.ArcOfCircle(Part.Circle(Vector(15.6, -7.7, 0), Vector(0, 0, 1), 2), math.radians(180), math.radians(360)), False)
sketch10.addGeometry(Part.LineSegment(Vector(17.6, -7.7, 0), Vector(17.6, -0.7, 0)), False)
sketch10.addGeometry(Part.ArcOfCircle(Part.Circle(Vector(15.6, -0.7, 0), Vector(0, 0, 1), 2), math.radians(0), math.radians(180)), False)
sketch10.addGeometry(Part.LineSegment(Vector(13.6, -0.7, 0), Vector(13.6, -7.7, 0)), False)
sketch10.addGeometry(Part.ArcOfCircle(Part.Circle(Vector(15.6, -37.3, 0), Vector(0, 0, 1), 2), math.radians(180), math.radians(360)), False)
sketch10.addGeometry(Part.LineSegment(Vector(17.6, -37.3, 0), Vector(17.6, -30.3, 0)), False)
sketch10.addGeometry(Part.ArcOfCircle(Part.Circle(Vector(15.6, -30.3, 0), Vector(0, 0, 1), 2), math.radians(0), math.radians(180)), False)
sketch10.addGeometry(Part.LineSegment(Vector(13.6, -30.3, 0), Vector(13.6, -37.3, 0)), False)
sketch10.addGeometry(Part.ArcOfCircle(Part.Circle(Vector(-7.8, -7.4, 0), Vector(0, 0, 1), 2), math.radians(0), math.radians(180)), False)
sketch10.addGeometry(Part.LineSegment(Vector(-9.8, -7.4, 0), Vector(-9.8, -14.4, 0)), False)
sketch10.addGeometry(Part.ArcOfCircle(Part.Circle(Vector(-7.8, -14.4, 0), Vector(0, 0, 1), 2), math.radians(180), math.radians(360)), False)
sketch10.addGeometry(Part.LineSegment(Vector(-5.8, -14.4, 0), Vector(-5.8, -7.4, 0)), False)
sketch10.addGeometry(Part.ArcOfCircle(Part.Circle(Vector(-7.8, -30.6, 0), Vector(0, 0, 1), 2), math.radians(180), math.radians(360)), False)
sketch10.addGeometry(Part.LineSegment(Vector(-5.8, -30.6, 0), Vector(-5.8, -23.6, 0)), False)
sketch10.addGeometry(Part.ArcOfCircle(Part.Circle(Vector(-7.8, -23.6, 0), Vector(0, 0, 1), 2), math.radians(0), math.radians(180)), False)
sketch10.addGeometry(Part.LineSegment(Vector(-9.8, -23.6, 0), Vector(-9.8, -30.6, 0)), False)
sketch10.addGeometry(Part.ArcOfCircle(Part.Circle(Vector(7.8, -7.4, 0), Vector(0, 0, 1), 2), math.radians(0), math.radians(180)), False)
sketch10.addGeometry(Part.LineSegment(Vector(5.8, -7.4, 0), Vector(5.8, -14.4, 0)), False)
sketch10.addGeometry(Part.ArcOfCircle(Part.Circle(Vector(7.8, -14.4, 0), Vector(0, 0, 1), 2), math.radians(180), math.radians(360)), False)
sketch10.addGeometry(Part.LineSegment(Vector(9.8, -14.4, 0), Vector(9.8, -7.4, 0)), False)
sketch10.addGeometry(Part.ArcOfCircle(Part.Circle(Vector(7.8, -30.6, 0), Vector(0, 0, 1), 2), math.radians(180), math.radians(360)), False)
sketch10.addGeometry(Part.LineSegment(Vector(9.8, -30.6, 0), Vector(9.8, -23.6, 0)), False)
sketch10.addGeometry(Part.ArcOfCircle(Part.Circle(Vector(7.8, -23.6, 0), Vector(0, 0, 1), 2), math.radians(0), math.radians(180)), False)
sketch10.addGeometry(Part.LineSegment(Vector(5.8, -23.6, 0), Vector(5.8, -30.6, 0)), False)
sketch10.addConstraint(Sketcher.Constraint("Tangent", 0, 2, 1, 1))
sketch10.addConstraint(Sketcher.Constraint("Tangent", 1, 2, 2, 1))
sketch10.addConstraint(Sketcher.Constraint("Tangent", 2, 2, 3, 1))
sketch10.addConstraint(Sketcher.Constraint("Tangent", 3, 2, 0, 1))
sketch10.addConstraint(Sketcher.Constraint("Tangent", 4, 2, 5, 1))
sketch10.addConstraint(Sketcher.Constraint("Tangent", 5, 2, 6, 1))
sketch10.addConstraint(Sketcher.Constraint("Tangent", 6, 2, 7, 1))
sketch10.addConstraint(Sketcher.Constraint("Tangent", 7, 2, 4, 1))
sketch10.addConstraint(Sketcher.Constraint("Tangent", 8, 2, 9, 1))
sketch10.addConstraint(Sketcher.Constraint("Tangent", 9, 2, 10, 1))
sketch10.addConstraint(Sketcher.Constraint("Tangent", 10, 2, 11, 1))
sketch10.addConstraint(Sketcher.Constraint("Tangent", 11, 2, 8, 1))
sketch10.addConstraint(Sketcher.Constraint("Tangent", 12, 2, 13, 1))
sketch10.addConstraint(Sketcher.Constraint("Tangent", 13, 2, 14, 1))
sketch10.addConstraint(Sketcher.Constraint("Tangent", 14, 2, 15, 1))
sketch10.addConstraint(Sketcher.Constraint("Tangent", 15, 2, 12, 1))
sketch10.addConstraint(Sketcher.Constraint("Tangent", 16, 2, 17, 1))
sketch10.addConstraint(Sketcher.Constraint("Tangent", 17, 2, 18, 1))
sketch10.addConstraint(Sketcher.Constraint("Tangent", 18, 2, 19, 1))
sketch10.addConstraint(Sketcher.Constraint("Tangent", 19, 2, 16, 1))
sketch10.addConstraint(Sketcher.Constraint("Tangent", 20, 2, 21, 1))
sketch10.addConstraint(Sketcher.Constraint("Tangent", 21, 2, 22, 1))
sketch10.addConstraint(Sketcher.Constraint("Tangent", 22, 2, 23, 1))
sketch10.addConstraint(Sketcher.Constraint("Tangent", 23, 2, 20, 1))
sketch10.addConstraint(Sketcher.Constraint("Tangent", 24, 2, 25, 1))
sketch10.addConstraint(Sketcher.Constraint("Tangent", 25, 2, 26, 1))
sketch10.addConstraint(Sketcher.Constraint("Tangent", 26, 2, 27, 1))
sketch10.addConstraint(Sketcher.Constraint("Tangent", 27, 2, 24, 1))
sketch10.addConstraint(Sketcher.Constraint("Tangent", 28, 2, 29, 1))
sketch10.addConstraint(Sketcher.Constraint("Tangent", 29, 2, 30, 1))
sketch10.addConstraint(Sketcher.Constraint("Tangent", 30, 2, 31, 1))
sketch10.addConstraint(Sketcher.Constraint("Tangent", 31, 2, 28, 1))
sketch10.addConstraint(Sketcher.Constraint("Tangent", 32, 2, 33, 1))
sketch10.addConstraint(Sketcher.Constraint("Tangent", 33, 2, 34, 1))
sketch10.addConstraint(Sketcher.Constraint("Tangent", 34, 2, 35, 1))
sketch10.addConstraint(Sketcher.Constraint("Tangent", 35, 2, 32, 1))
sketch10.addConstraint(Sketcher.Constraint("Tangent", 36, 2, 37, 1))
sketch10.addConstraint(Sketcher.Constraint("Tangent", 37, 2, 38, 1))
sketch10.addConstraint(Sketcher.Constraint("Tangent", 38, 2, 39, 1))
sketch10.addConstraint(Sketcher.Constraint("Tangent", 39, 2, 36, 1))
sketch10.addConstraint(Sketcher.Constraint("Tangent", 40, 2, 41, 1))
sketch10.addConstraint(Sketcher.Constraint("Tangent", 41, 2, 42, 1))
sketch10.addConstraint(Sketcher.Constraint("Tangent", 42, 2, 43, 1))
sketch10.addConstraint(Sketcher.Constraint("Tangent", 43, 2, 40, 1))
sketch10.addConstraint(Sketcher.Constraint("Tangent", 44, 2, 45, 1))
sketch10.addConstraint(Sketcher.Constraint("Tangent", 45, 2, 46, 1))
sketch10.addConstraint(Sketcher.Constraint("Tangent", 46, 2, 47, 1))
sketch10.addConstraint(Sketcher.Constraint("Tangent", 47, 2, 44, 1))
sketch10.addConstraint(Sketcher.Constraint("Tangent", 48, 2, 49, 1))
sketch10.addConstraint(Sketcher.Constraint("Tangent", 49, 2, 50, 1))
sketch10.addConstraint(Sketcher.Constraint("Tangent", 50, 2, 51, 1))
sketch10.addConstraint(Sketcher.Constraint("Tangent", 51, 2, 48, 1))
sketch10.addConstraint(Sketcher.Constraint("Vertical", 1))
sketch10.addConstraint(Sketcher.Constraint("Vertical", 3))
sketch10.addConstraint(Sketcher.Constraint("Vertical", 5))
sketch10.addConstraint(Sketcher.Constraint("Vertical", 7))
sketch10.addConstraint(Sketcher.Constraint("Vertical", 9))
sketch10.addConstraint(Sketcher.Constraint("Vertical", 11))
sketch10.addConstraint(Sketcher.Constraint("Vertical", 13))
sketch10.addConstraint(Sketcher.Constraint("Vertical", 15))
sketch10.addConstraint(Sketcher.Constraint("Vertical", 17))
sketch10.addConstraint(Sketcher.Constraint("Vertical", 19))
sketch10.addConstraint(Sketcher.Constraint("Vertical", 21))
sketch10.addConstraint(Sketcher.Constraint("Vertical", 23))
sketch10.addConstraint(Sketcher.Constraint("Vertical", 25))
sketch10.addConstraint(Sketcher.Constraint("Vertical", 27))
sketch10.addConstraint(Sketcher.Constraint("Vertical", 29))
sketch10.addConstraint(Sketcher.Constraint("Vertical", 31))
sketch10.addConstraint(Sketcher.Constraint("Vertical", 33))
sketch10.addConstraint(Sketcher.Constraint("Vertical", 35))
sketch10.addConstraint(Sketcher.Constraint("Vertical", 37))
sketch10.addConstraint(Sketcher.Constraint("Vertical", 39))
sketch10.addConstraint(Sketcher.Constraint("Vertical", 41))
sketch10.addConstraint(Sketcher.Constraint("Vertical", 43))
sketch10.addConstraint(Sketcher.Constraint("Vertical", 45))
sketch10.addConstraint(Sketcher.Constraint("Vertical", 47))
sketch10.addConstraint(Sketcher.Constraint("Vertical", 49))
sketch10.addConstraint(Sketcher.Constraint("Vertical", 51))
sketch10.addConstraint(Sketcher.Constraint("Equal", 2, 4))
sketch10.addConstraint(Sketcher.Constraint("Equal", 6, 8))
sketch10.addConstraint(Sketcher.Constraint("Equal", 10, 12))
sketch10.addConstraint(Sketcher.Constraint("Equal", 14, 16))
sketch10.addConstraint(Sketcher.Constraint("Equal", 18, 20))
sketch10.addConstraint(Sketcher.Constraint("Equal", 22, 24))
sketch10.addConstraint(Sketcher.Constraint("Equal", 26, 28))
sketch10.addConstraint(Sketcher.Constraint("Equal", 30, 32))
sketch10.addConstraint(Sketcher.Constraint("Equal", 34, 36))
sketch10.addConstraint(Sketcher.Constraint("Equal", 38, 40))
sketch10.addConstraint(Sketcher.Constraint("Equal", 42, 44))
sketch10.addConstraint(Sketcher.Constraint("Equal", 46, 48))
sketch10.addConstraint(Sketcher.Constraint("Symmetric", 12, 3, 24, 3, -2))
sketch10.addConstraint(Sketcher.Constraint("Symmetric", 16, 3, 28, 3, -2))
sketch10.addConstraint(Sketcher.Constraint("Symmetric", 20, 3, 32, 3, -2))
sketch10.addConstraint(Sketcher.Constraint("Symmetric", 36, 3, 44, 3, -2))
sketch10.addConstraint(Sketcher.Constraint("Symmetric", 40, 3, 48, 3, -2))
sketch10.addConstraint(Sketcher.Constraint("PointOnObject", 0, 3, -2))
sketch10.addConstraint(Sketcher.Constraint("PointOnObject", 4, 3, -2))
sketch10.addConstraint(Sketcher.Constraint("PointOnObject", 8, 3, -2))
sketch10.addConstraint(Sketcher.Constraint("Horizontal", 0, 3, 12, 3))
sketch10.addConstraint(Sketcher.Constraint("Horizontal", 2, 3, 14, 3))
sketch10.addConstraint(Sketcher.Constraint("Horizontal", 4, 3, 16, 3))
sketch10.addConstraint(Sketcher.Constraint("Horizontal", 6, 3, 18, 3))
sketch10.addConstraint(Sketcher.Constraint("Horizontal", 8, 3, 20, 3))
sketch10.addConstraint(Sketcher.Constraint("Horizontal", 10, 3, 22, 3))
sketch10.addConstraint(Sketcher.Constraint("Horizontal", 14, 3, 26, 3))
sketch10.addConstraint(Sketcher.Constraint("Horizontal", 18, 3, 30, 3))
sketch10.addConstraint(Sketcher.Constraint("Horizontal", 22, 3, 34, 3))
sketch10.addConstraint(Sketcher.Constraint("Horizontal", 38, 3, 46, 3))
sketch10.addConstraint(Sketcher.Constraint("Horizontal", 42, 3, 50, 3))
sketch10.addConstraint(Sketcher.Constraint("Vertical", 14, 3, 16, 3))
sketch10.addConstraint(Sketcher.Constraint("Vertical", 18, 3, 20, 3))
sketch10.addConstraint(Sketcher.Constraint("Vertical", 38, 3, 40, 3))
sketch10.addConstraint(Sketcher.Constraint("Equal", 3, 5))
sketch10.addConstraint(Sketcher.Constraint("Equal", 7, 9))
sketch10.addConstraint(Sketcher.Constraint("Equal", 35, 37))
sketch10.addConstraint(Sketcher.Constraint("Equal", 39, 41))
sketch10.addConstraint(Sketcher.Constraint("Radius", 0, Q("2 mm")))
sketch10.addConstraint(Sketcher.Constraint("DistanceY", 1, 2, 1, 1, Q("7 mm")))
sketch10.addConstraint(Sketcher.Constraint("DistanceY", 0, 3, -1, 1, Q("15.5 mm")))
sketch10.addConstraint(Sketcher.Constraint("DistanceY", 4, 3, -1, 1, Q("7.705551 mm")))
sketch10.addConstraint(Sketcher.Constraint("DistanceY", 8, 3, -1, 1, Q("37.294449 mm")))
sketch10.addConstraint(Sketcher.Constraint("DistanceX", 36, 2, -1, 1, Q("9.795312 mm")))
sketch10.addConstraint(Sketcher.Constraint("DistanceX", 12, 3, -1, 1, Q("15.590624 mm")))
sketch10.addConstraint(Sketcher.Constraint("DistanceY", 36, 3, -1, 1, Q("7.363847 mm")))
sketch10.addConstraint(Sketcher.Constraint("DistanceY", 40, 3, -1, 1, Q("30.636153 mm")))
pocket1 = body.newObject("PartDesign::Pocket", "Pocket")
pocket1.Profile = sketch10
pocket1.Length = 3.5

doc.recompute()
